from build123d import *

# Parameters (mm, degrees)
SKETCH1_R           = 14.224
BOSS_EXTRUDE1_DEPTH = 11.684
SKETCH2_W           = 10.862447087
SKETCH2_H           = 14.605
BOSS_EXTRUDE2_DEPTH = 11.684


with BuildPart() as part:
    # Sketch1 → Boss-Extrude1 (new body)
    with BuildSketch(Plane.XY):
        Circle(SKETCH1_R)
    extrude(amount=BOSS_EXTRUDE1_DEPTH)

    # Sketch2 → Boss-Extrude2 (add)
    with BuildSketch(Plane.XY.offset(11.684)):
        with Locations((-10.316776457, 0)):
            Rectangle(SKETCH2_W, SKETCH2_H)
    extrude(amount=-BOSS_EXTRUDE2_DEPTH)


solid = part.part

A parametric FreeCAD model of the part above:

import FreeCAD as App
import Part
import Sketcher

V = App.Vector
Q = App.Units.Quantity

doc = App.newDocument("Part")
params = doc.addObject("Spreadsheet::Sheet", "Params")
for row, (alias, value) in enumerate([
    ("sketch1_diameter", "1.12 in"),
    ("pad1_length", "0.46 in"),
    ("sketch2_height", "0.575 in"),
    ("pad2_length", "0.46 in"),
], start=1):
    params.set(f"A{row}", alias)
    params.set(f"B{row}", "=" + value)
    params.setAlias(f"B{row}", alias)

body = doc.addObject("PartDesign::Body", "Body")

# Sketch on XY plane
sketch1 = body.newObject("Sketcher::SketchObject", "Sketch")
sketch1.AttachmentSupport = (doc.getObject("XY_Plane"), [""])
sketch1.MapMode = "FlatFace"
sketch1.addGeometry(Part.Circle(V(0, 0, 0), V(0, 0, 1), 14.224), False)
sketch1.addConstraint([
    Sketcher.Constraint("Coincident", 0, 3, -1, 1),
    Sketcher.Constraint("Diameter", 0, Q("1.12 in")),
])
sketch1.setExpression("Constraints[1]", "Params.sketch1_diameter")
pad1 = body.newObject("PartDesign::Pad", "Pad")
pad1.Profile = sketch1
pad1.setExpression("Length", "Params.pad1_length")

# Sketch on XY plane
sketch2 = body.newObject("Sketcher::SketchObject", "Sketch001")
sketch2.AttachmentSupport = (doc.getObject("XY_Plane"), [""])
sketch2.MapMode = "FlatFace"
sketch2.AttachmentOffset = App.Placement(V(0, 0, 0.46 * 25.4), App.Rotation())
sketch2.addGeometry([
    Part.LineSegment(V(-15.748, 7.3025, 0), V(-15.748, -7.3025, 0)),
    Part.LineSegment(V(-15.748, -7.3025, 0), V(-4.885553, -7.3025, 0)),
    Part.LineSegment(V(-4.885553, -7.3025, 0), V(-4.885553, 7.3025, 0)),
    Part.LineSegment(V(-4.885553, 7.3025, 0), V(-15.748, 7.3025, 0)),
], False)
sketch2.addConstraint([
    Sketcher.Constraint("Coincident", 0, 2, 1, 1),
    Sketcher.Constraint("Coincident", 1, 2, 2, 1),
    Sketcher.Constraint("Coincident", 2, 2, 3, 1),
    Sketcher.Constraint("Coincident", 3, 2, 0, 1),
    Sketcher.Constraint("Vertical", 0),
    Sketcher.Constraint("Horizontal", 1),
    Sketcher.Constraint("Vertical", 2),
    Sketcher.Constraint("Horizontal", 3),
    Sketcher.Constraint("DistanceY", 0, 2, 0, 1, Q("0.575 in")),
    Sketcher.Constraint("DistanceX", 0, 2, -1, 1, Q("0.62 in")),
    Sketcher.Constraint("DistanceY", 0, 2, -1, 1, Q("0.2875 in")),
    Sketcher.Constraint("DistanceX", 1, 1, 1, 2, 10.862447),
])
sketch2.setExpression("Constraints[8]", "Params.sketch2_height")
pad2 = body.newObject("PartDesign::Pad", "Pad001")
pad2.Profile = sketch2
pad2.setExpression("Length", "Params.pad2_length")
pad2.Reversed = True

doc.recompute()
